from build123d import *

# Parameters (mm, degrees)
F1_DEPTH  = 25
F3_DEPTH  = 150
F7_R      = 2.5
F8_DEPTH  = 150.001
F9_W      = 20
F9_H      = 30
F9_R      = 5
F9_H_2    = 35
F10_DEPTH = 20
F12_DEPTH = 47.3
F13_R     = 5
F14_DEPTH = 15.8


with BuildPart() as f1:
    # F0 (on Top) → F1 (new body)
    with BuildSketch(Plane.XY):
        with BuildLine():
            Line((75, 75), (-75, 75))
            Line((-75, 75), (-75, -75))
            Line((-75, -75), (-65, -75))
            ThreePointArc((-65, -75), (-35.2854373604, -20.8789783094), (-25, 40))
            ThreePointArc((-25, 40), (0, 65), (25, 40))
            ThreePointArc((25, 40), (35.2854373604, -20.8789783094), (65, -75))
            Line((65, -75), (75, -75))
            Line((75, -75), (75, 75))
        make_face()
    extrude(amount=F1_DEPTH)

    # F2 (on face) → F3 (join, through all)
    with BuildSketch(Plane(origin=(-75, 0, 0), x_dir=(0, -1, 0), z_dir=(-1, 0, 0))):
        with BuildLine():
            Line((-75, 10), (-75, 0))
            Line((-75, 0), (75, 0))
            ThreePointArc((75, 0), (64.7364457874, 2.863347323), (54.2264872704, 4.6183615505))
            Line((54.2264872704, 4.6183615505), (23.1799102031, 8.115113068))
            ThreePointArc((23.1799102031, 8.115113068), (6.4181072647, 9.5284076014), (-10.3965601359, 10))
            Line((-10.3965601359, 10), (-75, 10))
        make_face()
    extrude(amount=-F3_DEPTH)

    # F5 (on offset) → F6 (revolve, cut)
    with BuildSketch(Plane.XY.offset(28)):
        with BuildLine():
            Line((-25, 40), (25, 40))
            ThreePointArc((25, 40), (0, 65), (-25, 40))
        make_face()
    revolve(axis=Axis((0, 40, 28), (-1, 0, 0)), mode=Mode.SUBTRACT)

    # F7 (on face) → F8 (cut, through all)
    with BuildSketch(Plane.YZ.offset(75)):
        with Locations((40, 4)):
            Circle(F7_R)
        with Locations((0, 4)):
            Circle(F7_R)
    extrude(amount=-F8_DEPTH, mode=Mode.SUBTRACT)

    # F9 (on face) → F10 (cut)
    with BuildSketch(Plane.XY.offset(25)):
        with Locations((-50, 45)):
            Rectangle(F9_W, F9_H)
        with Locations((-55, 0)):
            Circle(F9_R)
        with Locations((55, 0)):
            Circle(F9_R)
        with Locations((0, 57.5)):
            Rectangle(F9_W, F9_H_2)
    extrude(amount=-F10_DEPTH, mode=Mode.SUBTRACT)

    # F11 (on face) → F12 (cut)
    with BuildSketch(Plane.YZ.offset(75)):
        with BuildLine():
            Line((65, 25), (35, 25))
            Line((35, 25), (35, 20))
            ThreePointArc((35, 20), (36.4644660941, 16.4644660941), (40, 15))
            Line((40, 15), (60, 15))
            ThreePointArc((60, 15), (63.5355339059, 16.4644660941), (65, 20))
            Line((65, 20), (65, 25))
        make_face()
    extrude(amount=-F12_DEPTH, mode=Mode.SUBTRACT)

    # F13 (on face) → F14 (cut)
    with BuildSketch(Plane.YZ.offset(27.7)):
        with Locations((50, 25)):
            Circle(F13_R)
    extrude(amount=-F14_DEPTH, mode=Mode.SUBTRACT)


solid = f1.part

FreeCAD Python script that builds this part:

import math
import FreeCAD as App
import Part
import Sketcher
Q = App.Units.Quantity

doc = App.newDocument("Part")
body = doc.addObject("PartDesign::Body", "Body")

# Sketch on XY plane
sketch1 = body.newObject("Sketcher::SketchObject", "Sketch")
sketch1.AttachmentSupport = (doc.getObject("XY_Plane"), [""])
sketch1.MapMode = "FlatFace"
sketch1.addGeometry([
    Part.LineSegment(App.Vector(75, 75, 0), App.Vector(-75, 75, 0)),  # 0
    Part.LineSegment(App.Vector(-75, 75, 0), App.Vector(-75, -75, 0)),  # 1
    Part.LineSegment(App.Vector(-75, -75, 0), App.Vector(-65, -75, 0)),  # 2
    Part.ArcOfCircle(Part.Circle(App.Vector(-210, 40, 0), App.Vector(0, 0, 1), 185), math.radians(-38), math.radians(0)),  # 3
    Part.ArcOfCircle(Part.Circle(App.Vector(0, 40, 0), App.Vector(0, 0, 1), 25), math.radians(0), math.radians(180)),  # 4
    Part.ArcOfCircle(Part.Circle(App.Vector(210, 40, 0), App.Vector(0, 0, 1), 185), math.radians(180), math.radians(218)),  # 5
    Part.LineSegment(App.Vector(65, -75, 0), App.Vector(75, -75, 0)),  # 6
    Part.LineSegment(App.Vector(75, -75, 0), App.Vector(75, 75, 0)),  # 7
], False)
sketch1.addConstraint([
    Sketcher.Constraint("Coincident", 0, 2, 1, 1),
    Sketcher.Constraint("Coincident", 1, 2, 2, 1),
    Sketcher.Constraint("Coincident", 2, 2, 3, 1),
    Sketcher.Constraint("Tangent", 3, 2, 4, 2),
    Sketcher.Constraint("Tangent", 4, 1, 5, 1),
    Sketcher.Constraint("Coincident", 5, 2, 6, 1),
    Sketcher.Constraint("Coincident", 6, 2, 7, 1),
    Sketcher.Constraint("Coincident", 7, 2, 0, 1),
    Sketcher.Constraint("Horizontal", 0),
    Sketcher.Constraint("Vertical", 1),
    Sketcher.Constraint("Horizontal", 2),
    Sketcher.Constraint("Horizontal", 6),
    Sketcher.Constraint("Vertical", 7),
    Sketcher.Constraint("Equal", 3, 5),
    Sketcher.Constraint("Symmetric", 0, 2, 6, 2, -1, 1),
    Sketcher.Constraint("Symmetric", 3, 3, 5, 3, -2),
    Sketcher.Constraint("Horizontal", 3, 3, 4, 3),
    Sketcher.Constraint("Horizontal", 2, 2, 5, 2),
    Sketcher.Constraint("Equal", 0, 1),
    Sketcher.Constraint("Radius", 4, Q("25 mm")),
    Sketcher.Constraint("DistanceX", 0, 2, 0, 1, Q("150 mm")),
    Sketcher.Constraint("DistanceX", 2, 1, 2, 2, Q("10 mm")),
    Sketcher.Constraint("DistanceY", -1, 1, 3, 3, Q("40 mm")),
])
pad1 = body.newObject("PartDesign::Pad", "Pad")
pad1.Profile = sketch1
pad1.Length = 25

# Sketch on YZ plane
sketch2 = body.newObject("Sketcher::SketchObject", "Sketch001")
sketch2.AttachmentSupport = (doc.getObject("YZ_Plane"), [""])
sketch2.MapMode = "FlatFace"
sketch2.AttachmentOffset = App.Placement(App.Vector(0, 0, -75), App.Rotation())
sketch2.addGeometry([
    Part.LineSegment(App.Vector(75, 10, 0), App.Vector(75, 0, 0)),  # 0
    Part.LineSegment(App.Vector(75, 0, 0), App.Vector(-75, 0, 0)),  # 1
    Part.ArcOfCircle(Part.Circle(App.Vector(-43, -95, 0), App.Vector(0, 0, 1), 100), math.radians(96.43), math.radians(108.64)),  # 2
    Part.LineSegment(App.Vector(-54, 5, 0), App.Vector(-23, 8, 0)),  # 3
    Part.ArcOfCircle(Part.Circle(App.Vector(10, -290, 0), App.Vector(0, 0, 1), 300), math.radians(90), math.radians(96.43)),  # 4
    Part.LineSegment(App.Vector(10, 10, 0), App.Vector(75, 10, 0)),  # 5
], False)
sketch2.addConstraint([
    Sketcher.Constraint("Coincident", 0, 2, 1, 1),
    Sketcher.Constraint("Coincident", 1, 2, 2, 2),
    Sketcher.Constraint("Tangent", 2, 1, 3, 1),
    Sketcher.Constraint("Tangent", 3, 2, 4, 2),
    Sketcher.Constraint("Tangent", 4, 1, 5, 1),
    Sketcher.Constraint("Coincident", 5, 2, 0, 1),
    Sketcher.Constraint("Vertical", 0),
    Sketcher.Constraint("Horizontal", 1),
    Sketcher.Constraint("Horizontal", 5),
    Sketcher.Constraint("Symmetric", 0, 2, 1, 2, -1, 1),
    Sketcher.Constraint("Radius", 2, Q("100 mm")),
    Sketcher.Constraint("Radius", 4, Q("300 mm")),
    Sketcher.Constraint("DistanceX", 1, 2, 1, 1, Q("150 mm")),
    Sketcher.Constraint("DistanceY", 0, 2, 0, 1, Q("10 mm")),
    Sketcher.Constraint("DistanceX", 5, 1, 5, 2, Q("64.60344 mm")),
    Sketcher.Constraint("DistanceX", 2, 3, -1, 1, Q("43.03433 mm")),
])
pad2 = body.newObject("PartDesign::Pad", "Pad001")
pad2.Profile = sketch2
pad2.Type = "UpToLast"

# Sketch on XY plane
sketch3 = body.newObject("Sketcher::SketchObject", "Sketch002")
sketch3.AttachmentSupport = (doc.getObject("XY_Plane"), [""])
sketch3.MapMode = "FlatFace"
sketch3.AttachmentOffset = App.Placement(App.Vector(0, 0, 28), App.Rotation())
sketch3.addGeometry([
    Part.LineSegment(App.Vector(-25, 40, 0), App.Vector(25, 40, 0)),
    Part.ArcOfCircle(Part.Circle(App.Vector(0, 40, 0), App.Vector(0, 0, 1), 25), math.radians(0), math.radians(180)),
], False)
sketch3.addGeometry(Part.LineSegment(App.Vector(25, 40, 0), App.Vector(-25, 40, 0)), True)  # axis
sketch3.addConstraint([
    Sketcher.Constraint("Coincident", 0, 1, 1, 2),
    Sketcher.Constraint("Coincident", 1, 1, 0, 2),
    Sketcher.Constraint("Horizontal", 0),
    Sketcher.Constraint("Horizontal", 2),
    Sketcher.Constraint("Coincident", 2, 1, 1, 1),
    Sketcher.Constraint("PointOnObject", 1, 3, -2),
    Sketcher.Constraint("Horizontal", 1, 3, 0, 1),
    Sketcher.Constraint("Equal", 0, 2),
    Sketcher.Constraint("Radius", 1, Q("25 mm")),
    Sketcher.Constraint("DistanceY", -1, 1, 1, 3, Q("40 mm")),
])
groove = body.newObject("PartDesign::Groove", "Groove")
groove.Profile = sketch3
groove.ReferenceAxis = (sketch3, ["Axis0"])
groove.Angle = 360

# Sketch on YZ plane
sketch4 = body.newObject("Sketcher::SketchObject", "Sketch003")
sketch4.AttachmentSupport = (doc.getObject("YZ_Plane"), [""])
sketch4.MapMode = "FlatFace"
sketch4.AttachmentOffset = App.Placement(App.Vector(0, 0, 75), App.Rotation())
sketch4.addGeometry([
    Part.Circle(App.Vector(40, 4, 0), App.Vector(0, 0, 1), 2.5),
    Part.Circle(App.Vector(0, 4, 0), App.Vector(0, 0, 1), 2.5),
], False)
sketch4.addConstraint([
    Sketcher.Constraint("Equal", 0, 1),
    Sketcher.Constraint("PointOnObject", 1, 3, -2),
    Sketcher.Constraint("Horizontal", 0, 3, 1, 3),
    Sketcher.Constraint("Diameter", 0, Q("5 mm")),
    Sketcher.Constraint("DistanceX", -1, 1, 0, 3, Q("40 mm")),
    Sketcher.Constraint("DistanceY", -1, 1, 0, 3, Q("4 mm")),
])
pocket1 = body.newObject("PartDesign::Pocket", "Pocket")
pocket1.Profile = sketch4
pocket1.Type = "ThroughAll"

# Sketch on XY plane
sketch5 = body.newObject("Sketcher::SketchObject", "Sketch004")
sketch5.AttachmentSupport = (doc.getObject("XY_Plane"), [""])
sketch5.MapMode = "FlatFace"
sketch5.AttachmentOffset = App.Placement(App.Vector(0, 0, 25), App.Rotation())
sketch5.addGeometry([
    Part.LineSegment(App.Vector(-60, 60, 0), App.Vector(-60, 30, 0)),  # 0
    Part.LineSegment(App.Vector(-60, 30, 0), App.Vector(-40, 30, 0)),  # 1
    Part.LineSegment(App.Vector(-40, 30, 0), App.Vector(-40, 60, 0)),  # 2
    Part.LineSegment(App.Vector(-40, 60, 0), App.Vector(-60, 60, 0)),  # 3
    Part.Circle(App.Vector(-55, 0, 0), App.Vector(0, 0, 1), 5),  # 4
    Part.Circle(App.Vector(55, 0, 0), App.Vector(0, 0, 1), 5),  # 5
    Part.LineSegment(App.Vector(-10, 75, 0), App.Vector(-10, 40, 0)),  # 6
    Part.LineSegment(App.Vector(-10, 40, 0), App.Vector(10, 40, 0)),  # 7
    Part.LineSegment(App.Vector(10, 40, 0), App.Vector(10, 75, 0)),  # 8
    Part.LineSegment(App.Vector(10, 75, 0), App.Vector(-10, 75, 0)),  # 9
], False)
sketch5.addConstraint([
    Sketcher.Constraint("Coincident", 0, 2, 1, 1),
    Sketcher.Constraint("Coincident", 1, 2, 2, 1),
    Sketcher.Constraint("Coincident", 2, 2, 3, 1),
    Sketcher.Constraint("Coincident", 3, 2, 0, 1),
    Sketcher.Constraint("Coincident", 6, 2, 7, 1),
    Sketcher.Constraint("Coincident", 7, 2, 8, 1),
    Sketcher.Constraint("Coincident", 8, 2, 9, 1),
    Sketcher.Constraint("Coincident", 9, 2, 6, 1),
    Sketcher.Constraint("Vertical", 0),
    Sketcher.Constraint("Horizontal", 1),
    Sketcher.Constraint("Vertical", 2),
    Sketcher.Constraint("Horizontal", 3),
    Sketcher.Constraint("Vertical", 6),
    Sketcher.Constraint("Horizontal", 7),
    Sketcher.Constraint("Vertical", 8),
    Sketcher.Constraint("Horizontal", 9),
    Sketcher.Constraint("Equal", 4, 5),
    Sketcher.Constraint("Symmetric", 4, 3, 5, 3, -1, 1),
    Sketcher.Constraint("PointOnObject", 4, 3, -1),
    Sketcher.Constraint("Equal", 3, 7),
    Sketcher.Constraint("Diameter", 4, Q("10 mm")),
    Sketcher.Constraint("DistanceX", 1, 1, 1, 2, Q("20 mm")),
    Sketcher.Constraint("DistanceY", 0, 2, 0, 1, Q("30 mm")),
    Sketcher.Constraint("DistanceY", 6, 2, 6, 1, Q("35 mm")),
    Sketcher.Constraint("DistanceX", 4, 3, -1, 1, Q("55 mm")),
    Sketcher.Constraint("DistanceX", 0, 2, -1, 1, Q("60 mm")),
    Sketcher.Constraint("DistanceY", -1, 1, 0, 2, Q("30 mm")),
    Sketcher.Constraint("DistanceX", 6, 2, -1, 1, Q("10 mm")),
    Sketcher.Constraint("DistanceY", -1, 1, 6, 2, Q("40 mm")),
])
pocket2 = body.newObject("PartDesign::Pocket", "Pocket001")
pocket2.Profile = sketch5
pocket2.Length = 20

# Sketch on YZ plane
sketch6 = body.newObject("Sketcher::SketchObject", "Sketch005")
sketch6.AttachmentSupport = (doc.getObject("YZ_Plane"), [""])
sketch6.MapMode = "FlatFace"
sketch6.AttachmentOffset = App.Placement(App.Vector(0, 0, 75), App.Rotation())
sketch6.addGeometry([
    Part.LineSegment(App.Vector(65, 25, 0), App.Vector(35, 25, 0)),  # 0
    Part.LineSegment(App.Vector(35, 25, 0), App.Vector(35, 20, 0)),  # 1
    Part.ArcOfCircle(Part.Circle(App.Vector(40, 20, 0), App.Vector(0, 0, 1), 5), math.radians(180), math.radians(270)),  # 2
    Part.LineSegment(App.Vector(40, 15, 0), App.Vector(60, 15, 0)),  # 3
    Part.ArcOfCircle(Part.Circle(App.Vector(60, 20, 0), App.Vector(0, 0, 1), 5), math.radians(-90), math.radians(0)),  # 4
    Part.LineSegment(App.Vector(65, 20, 0), App.Vector(65, 25, 0)),  # 5
], False)
sketch6.addConstraint([
    Sketcher.Constraint("Coincident", 0, 2, 1, 1),
    Sketcher.Constraint("Tangent", 1, 2, 2, 1),
    Sketcher.Constraint("Tangent", 2, 2, 3, 1),
    Sketcher.Constraint("Tangent", 3, 2, 4, 1),
    Sketcher.Constraint("Tangent", 4, 2, 5, 1),
    Sketcher.Constraint("Coincident", 5, 2, 0, 1),
    Sketcher.Constraint("Horizontal", 0),
    Sketcher.Constraint("Vertical", 1),
    Sketcher.Constraint("Horizontal", 3),
    Sketcher.Constraint("Vertical", 5),
    Sketcher.Constraint("Equal", 2, 4),
    Sketcher.Constraint("Radius", 2, Q("5 mm")),
    Sketcher.Constraint("DistanceX", 0, 2, 0, 1, Q("30 mm")),
    Sketcher.Constraint("DistanceY", 1, 2, 1, 1, Q("5 mm")),
    Sketcher.Constraint("DistanceX", -1, 1, 2, 3, Q("40 mm")),
    Sketcher.Constraint("DistanceY", -1, 1, 2, 3, Q("20 mm")),
])
pocket3 = body.newObject("PartDesign::Pocket", "Pocket002")
pocket3.Profile = sketch6
pocket3.Length = 47.3

# Sketch on YZ plane
sketch7 = body.newObject("Sketcher::SketchObject", "Sketch006")
sketch7.AttachmentSupport = (doc.getObject("YZ_Plane"), [""])
sketch7.MapMode = "FlatFace"
sketch7.AttachmentOffset = App.Placement(App.Vector(0, 0, 27.7), App.Rotation())
sketch7.addGeometry(Part.Circle(App.Vector(50, 25, 0), App.Vector(0, 0, 1), 5), False)
sketch7.addConstraint([
    Sketcher.Constraint("Diameter", 0, Q("10 mm")),
    Sketcher.Constraint("DistanceX", -1, 1, 0, 3, Q("50 mm")),
    Sketcher.Constraint("DistanceY", -1, 1, 0, 3, Q("25 mm")),
])
pocket4 = body.newObject("PartDesign::Pocket", "Pocket003")
pocket4.Profile = sketch7
pocket4.Length = 15.8

doc.recompute()
